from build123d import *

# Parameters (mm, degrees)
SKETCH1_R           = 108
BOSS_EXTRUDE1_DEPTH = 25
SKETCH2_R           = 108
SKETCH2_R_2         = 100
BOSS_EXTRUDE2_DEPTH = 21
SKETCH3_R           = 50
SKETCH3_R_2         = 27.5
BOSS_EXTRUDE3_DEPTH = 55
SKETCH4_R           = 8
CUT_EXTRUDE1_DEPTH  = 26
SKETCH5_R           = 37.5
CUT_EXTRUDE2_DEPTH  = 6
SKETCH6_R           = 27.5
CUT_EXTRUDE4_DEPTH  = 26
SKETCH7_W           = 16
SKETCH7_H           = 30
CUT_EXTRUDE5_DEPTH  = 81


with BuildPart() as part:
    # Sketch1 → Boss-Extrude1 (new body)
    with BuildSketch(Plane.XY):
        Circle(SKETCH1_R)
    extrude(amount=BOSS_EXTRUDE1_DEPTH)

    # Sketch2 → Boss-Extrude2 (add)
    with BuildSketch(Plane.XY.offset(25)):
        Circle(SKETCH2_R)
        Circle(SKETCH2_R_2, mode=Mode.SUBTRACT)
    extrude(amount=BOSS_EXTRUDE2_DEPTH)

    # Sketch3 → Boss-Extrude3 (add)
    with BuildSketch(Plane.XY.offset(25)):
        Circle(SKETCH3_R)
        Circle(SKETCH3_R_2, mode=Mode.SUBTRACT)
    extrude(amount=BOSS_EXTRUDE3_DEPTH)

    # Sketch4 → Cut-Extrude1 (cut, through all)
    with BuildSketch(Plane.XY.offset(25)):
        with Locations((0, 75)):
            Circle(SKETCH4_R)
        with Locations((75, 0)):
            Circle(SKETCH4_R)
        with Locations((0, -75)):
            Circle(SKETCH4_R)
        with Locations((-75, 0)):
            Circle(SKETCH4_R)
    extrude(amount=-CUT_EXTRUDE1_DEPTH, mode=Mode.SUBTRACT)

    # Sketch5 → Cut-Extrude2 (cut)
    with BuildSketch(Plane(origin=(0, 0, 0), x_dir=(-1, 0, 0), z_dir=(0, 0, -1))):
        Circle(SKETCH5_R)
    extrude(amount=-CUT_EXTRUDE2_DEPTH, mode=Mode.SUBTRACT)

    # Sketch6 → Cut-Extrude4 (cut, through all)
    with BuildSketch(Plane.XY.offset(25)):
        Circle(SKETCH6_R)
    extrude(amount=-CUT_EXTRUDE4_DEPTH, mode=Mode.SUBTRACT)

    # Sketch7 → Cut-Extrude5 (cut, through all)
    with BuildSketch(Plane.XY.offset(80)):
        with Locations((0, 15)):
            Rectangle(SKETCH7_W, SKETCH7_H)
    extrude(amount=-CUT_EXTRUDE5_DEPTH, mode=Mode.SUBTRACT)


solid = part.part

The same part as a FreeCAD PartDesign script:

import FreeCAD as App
import Part
import Sketcher
from FreeCAD import Vector
Q = App.Units.Quantity


def add_polygon(sketch, points):
    """Adds a closed chain of lines whose ends are joined by coincident constraints."""
    first, n = sketch.GeometryCount, len(points)
    for a, b in zip(points, points[1:] + points[:1]):
        sketch.addGeometry(Part.LineSegment(App.Vector(*a, 0), App.Vector(*b, 0)), False)
    for i in range(n):
        sketch.addConstraint(Sketcher.Constraint("Coincident", first + i, 2, first + (i + 1) % n, 1))

doc = App.newDocument("Part")
body = doc.addObject("PartDesign::Body", "Body")

sketch1 = doc.addObject("Sketcher::SketchObject", "Sketch")
body.addObject(sketch1)
sketch1.AttachmentSupport = (doc.XY_Plane, [""])
sketch1.MapMode = "FlatFace"
sketch1.addGeometry(Part.Circle(Vector(0, 0, 0), Vector(0, 0, 1), 108), False)
sketch1.addConstraint([
    Sketcher.Constraint("Coincident", 0, 3, -1, 1),
    Sketcher.Constraint("Diameter", 0, Q("216 mm")),
])
pad1 = doc.addObject("PartDesign::Pad", "Pad")
body.addObject(pad1)
pad1.Profile = sketch1
pad1.Length = 25

sketch2 = doc.addObject("Sketcher::SketchObject", "Sketch001")
body.addObject(sketch2)
sketch2.AttachmentSupport = (doc.XY_Plane, [""])
sketch2.MapMode = "FlatFace"
sketch2.AttachmentOffset = App.Placement(Vector(0, 0, 25), App.Rotation())
sketch2.addGeometry([
    Part.Circle(Vector(0, 0, 0), Vector(0, 0, 1), 108),
    Part.Circle(Vector(0, 0, 0), Vector(0, 0, 1), 100),
], False)
sketch2.addConstraint([
    Sketcher.Constraint("Coincident", 0, 3, -1, 1),
    Sketcher.Constraint("Coincident", 1, 3, -1, 1),
    Sketcher.Constraint("Diameter", 0, Q("216 mm")),
    Sketcher.Constraint("Diameter", 1, Q("200 mm")),
])
pad2 = doc.addObject("PartDesign::Pad", "Pad001")
body.addObject(pad2)
pad2.Profile = sketch2
pad2.Length = 21

sketch3 = doc.addObject("Sketcher::SketchObject", "Sketch002")
body.addObject(sketch3)
sketch3.AttachmentSupport = (doc.XY_Plane, [""])
sketch3.MapMode = "FlatFace"
sketch3.AttachmentOffset = App.Placement(Vector(0, 0, 25), App.Rotation())
sketch3.addGeometry([
    Part.Circle(Vector(0, 0, 0), Vector(0, 0, 1), 50),
    Part.Circle(Vector(0, 0, 0), Vector(0, 0, 1), 27.5),
], False)
sketch3.addConstraint([
    Sketcher.Constraint("Coincident", 0, 3, -1, 1),
    Sketcher.Constraint("Coincident", 1, 3, -1, 1),
    Sketcher.Constraint("Diameter", 0, Q("100 mm")),
    Sketcher.Constraint("Diameter", 1, Q("55 mm")),
])
pad3 = doc.addObject("PartDesign::Pad", "Pad002")
body.addObject(pad3)
pad3.Profile = sketch3
pad3.Length = 55

sketch4 = doc.addObject("Sketcher::SketchObject", "Sketch003")
body.addObject(sketch4)
sketch4.AttachmentSupport = (doc.XY_Plane, [""])
sketch4.MapMode = "FlatFace"
sketch4.AttachmentOffset = App.Placement(Vector(0, 0, 25), App.Rotation())
sketch4.addGeometry([
    Part.Circle(Vector(0, 75, 0), Vector(0, 0, 1), 8),
    Part.Circle(Vector(75, 0, 0), Vector(0, 0, 1), 8),
    Part.Circle(Vector(0, -75, 0), Vector(0, 0, 1), 8),
    Part.Circle(Vector(-75, 0, 0), Vector(0, 0, 1), 8),
], False)
sketch4.addConstraint([
    Sketcher.Constraint("Equal", 0, 1),
    Sketcher.Constraint("Equal", 1, 2),
    Sketcher.Constraint("Equal", 2, 3),
    Sketcher.Constraint("Symmetric", 0, 3, 2, 3, -1, 1),
    Sketcher.Constraint("Symmetric", 1, 3, 3, 3, -1, 1),
    Sketcher.Constraint("PointOnObject", 0, 3, -2),
    Sketcher.Constraint("PointOnObject", 1, 3, -1),
    Sketcher.Constraint("Diameter", 0, Q("16 mm")),
    Sketcher.Constraint("DistanceY", -1, 1, 0, 3, Q("75 mm")),
    Sketcher.Constraint("DistanceX", -1, 1, 1, 3, Q("75 mm")),
])
pocket1 = doc.addObject("PartDesign::Pocket", "Pocket")
body.addObject(pocket1)
pocket1.Profile = sketch4
pocket1.Type = "ThroughAll"

sketch5 = doc.addObject("Sketcher::SketchObject", "Sketch004")
body.addObject(sketch5)
sketch5.AttachmentSupport = (doc.XY_Plane, [""])
sketch5.MapMode = "FlatFace"
sketch5.addGeometry(Part.Circle(Vector(0, 0, 0), Vector(0, 0, 1), 37.5), False)
sketch5.addConstraint([
    Sketcher.Constraint("Coincident", 0, 3, -1, 1),
    Sketcher.Constraint("Diameter", 0, Q("75 mm")),
])
pocket2 = doc.addObject("PartDesign::Pocket", "Pocket001")
body.addObject(pocket2)
pocket2.Profile = sketch5
pocket2.Length = 6
pocket2.Reversed = True

sketch6 = doc.addObject("Sketcher::SketchObject", "Sketch005")
body.addObject(sketch6)
sketch6.AttachmentSupport = (doc.XY_Plane, [""])
sketch6.MapMode = "FlatFace"
sketch6.AttachmentOffset = App.Placement(Vector(0, 0, 25), App.Rotation())
sketch6.addGeometry(Part.Circle(Vector(0, 0, 0), Vector(0, 0, 1), 27.5), False)
sketch6.addConstraint([
    Sketcher.Constraint("Coincident", 0, 3, -1, 1),
    Sketcher.Constraint("Diameter", 0, Q("55 mm")),
])
pocket3 = doc.addObject("PartDesign::Pocket", "Pocket002")
body.addObject(pocket3)
pocket3.Profile = sketch6
pocket3.Type = "ThroughAll"

sketch7 = doc.addObject("Sketcher::SketchObject", "Sketch006")
body.addObject(sketch7)
sketch7.AttachmentSupport = (doc.XY_Plane, [""])
sketch7.MapMode = "FlatFace"
sketch7.AttachmentOffset = App.Placement(Vector(0, 0, 80), App.Rotation())
add_polygon(sketch7, [(-8, 30), (-8, 0), (8, 0), (8, 30)])
sketch7.addConstraint([
    Sketcher.Constraint("Vertical", 0),
    Sketcher.Constraint("Horizontal", 1),
    Sketcher.Constraint("Vertical", 2),
    Sketcher.Constraint("Horizontal", 3),
    Sketcher.Constraint("Symmetric", 0, 2, 1, 2, -1, 1),
    Sketcher.Constraint("DistanceX", 1, 1, 1, 2, Q("16 mm")),
    Sketcher.Constraint("DistanceY", 0, 2, 0, 1, Q("30 mm")),
])
pocket4 = doc.addObject("PartDesign::Pocket", "Pocket003")
body.addObject(pocket4)
pocket4.Profile = sketch7
pocket4.Type = "ThroughAll"

doc.recompute()
